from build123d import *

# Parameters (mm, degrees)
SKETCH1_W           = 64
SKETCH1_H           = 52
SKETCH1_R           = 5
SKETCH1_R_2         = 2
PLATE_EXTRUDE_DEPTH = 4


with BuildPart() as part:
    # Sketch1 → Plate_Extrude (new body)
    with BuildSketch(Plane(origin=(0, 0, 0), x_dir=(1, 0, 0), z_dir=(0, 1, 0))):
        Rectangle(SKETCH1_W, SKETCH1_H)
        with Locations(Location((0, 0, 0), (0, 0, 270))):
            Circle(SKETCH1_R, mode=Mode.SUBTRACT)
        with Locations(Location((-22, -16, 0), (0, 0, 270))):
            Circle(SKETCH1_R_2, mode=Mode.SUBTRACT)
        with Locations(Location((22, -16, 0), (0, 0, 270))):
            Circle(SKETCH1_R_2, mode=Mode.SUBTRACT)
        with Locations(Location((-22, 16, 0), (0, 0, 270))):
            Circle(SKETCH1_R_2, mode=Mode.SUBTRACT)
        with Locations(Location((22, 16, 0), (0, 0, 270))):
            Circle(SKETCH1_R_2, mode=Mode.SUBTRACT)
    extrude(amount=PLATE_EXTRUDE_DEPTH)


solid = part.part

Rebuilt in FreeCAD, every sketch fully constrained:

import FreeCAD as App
import Part
import Sketcher

V = App.Vector
Q = App.Units.Quantity


def add_polygon(sketch, points):
    """Adds a closed chain of lines whose ends are joined by coincident constraints."""
    first, n = sketch.GeometryCount, len(points)
    for a, b in zip(points, points[1:] + points[:1]):
        sketch.addGeometry(Part.LineSegment(App.Vector(*a, 0), App.Vector(*b, 0)), False)
    for i in range(n):
        sketch.addConstraint(Sketcher.Constraint("Coincident", first + i, 2, first + (i + 1) % n, 1))

doc = App.newDocument("Part")
body = doc.addObject("PartDesign::Body", "Body")

sketch1 = body.newObject("Sketcher::SketchObject", "Sketch")
sketch1.AttachmentSupport = (doc.getObject("XZ_Plane"), [""])
sketch1.MapMode = "FlatFace"
add_polygon(sketch1, [(-32, -26), (-32, 26), (32, 26), (32, -26)])
sketch1.addGeometry(Part.Circle(V(-22, 16, 0), V(0, 0, 1), 2), False)
sketch1.addGeometry(Part.Circle(V(22, 16, 0), V(0, 0, 1), 2), False)
sketch1.addGeometry(Part.Circle(V(-22, -16, 0), V(0, 0, 1), 2), False)
sketch1.addGeometry(Part.Circle(V(0, 0, 0), V(0, 0, 1), 5), False)
sketch1.addGeometry(Part.Circle(V(22, -16, 0), V(0, 0, 1), 2), False)
sketch1.addConstraint([
    Sketcher.Constraint("Vertical", 0),
    Sketcher.Constraint("Horizontal", 1),
    Sketcher.Constraint("Vertical", 2),
    Sketcher.Constraint("Horizontal", 3),
    Sketcher.Constraint("Coincident", 7, 3, -1, 1),
    Sketcher.Constraint("Equal", 4, 5),
    Sketcher.Constraint("Equal", 5, 6),
    Sketcher.Constraint("Equal", 6, 8),
    Sketcher.Constraint("Symmetric", 5, 3, 6, 3, -1, 1),
    Sketcher.Constraint("Symmetric", 4, 3, 8, 3, -1, 1),
    Sketcher.Constraint("Symmetric", 0, 2, 2, 2, -1, 1),
    Sketcher.Constraint("Symmetric", 4, 3, 5, 3, -2),
    Sketcher.Constraint("Diameter", 4, Q("4 mm")),
    Sketcher.Constraint("Diameter", 7, Q("10 mm")),
    Sketcher.Constraint("DistanceX", 1, 1, 1, 2, Q("64 mm")),
    Sketcher.Constraint("DistanceY", 0, 1, 0, 2, Q("52 mm")),
    Sketcher.Constraint("DistanceX", 4, 3, -1, 1, Q("22 mm")),
    Sketcher.Constraint("DistanceY", -1, 1, 4, 3, Q("16 mm")),
])
pad1 = body.newObject("PartDesign::Pad", "Pad")
pad1.Profile = sketch1
pad1.Length = 4
pad1.Reversed = True

doc.recompute()
